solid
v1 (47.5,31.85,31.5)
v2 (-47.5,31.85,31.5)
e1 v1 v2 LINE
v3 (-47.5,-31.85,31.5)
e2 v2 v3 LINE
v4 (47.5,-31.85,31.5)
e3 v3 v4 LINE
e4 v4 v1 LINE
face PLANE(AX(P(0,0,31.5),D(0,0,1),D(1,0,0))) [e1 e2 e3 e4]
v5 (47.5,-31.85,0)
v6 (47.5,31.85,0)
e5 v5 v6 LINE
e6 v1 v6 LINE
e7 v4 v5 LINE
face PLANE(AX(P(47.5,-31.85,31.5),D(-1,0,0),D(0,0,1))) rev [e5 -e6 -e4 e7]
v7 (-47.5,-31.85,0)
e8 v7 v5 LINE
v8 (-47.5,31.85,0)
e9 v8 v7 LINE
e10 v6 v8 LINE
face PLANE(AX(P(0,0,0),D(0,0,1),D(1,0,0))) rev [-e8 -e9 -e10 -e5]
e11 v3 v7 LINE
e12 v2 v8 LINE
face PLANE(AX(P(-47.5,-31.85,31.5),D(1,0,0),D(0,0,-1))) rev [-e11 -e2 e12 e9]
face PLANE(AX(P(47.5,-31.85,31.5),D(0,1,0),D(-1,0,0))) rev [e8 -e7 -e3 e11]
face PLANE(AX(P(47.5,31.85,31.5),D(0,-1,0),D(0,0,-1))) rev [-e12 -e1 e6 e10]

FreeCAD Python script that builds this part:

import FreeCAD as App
import Part
import Sketcher
Q = App.Units.Quantity


def add_polygon(sketch, points):
    """Adds a closed chain of lines whose ends are joined by coincident constraints."""
    first, n = sketch.GeometryCount, len(points)
    for a, b in zip(points, points[1:] + points[:1]):
        sketch.addGeometry(Part.LineSegment(App.Vector(*a, 0), App.Vector(*b, 0)), False)
    for i in range(n):
        sketch.addConstraint(Sketcher.Constraint("Coincident", first + i, 2, first + (i + 1) % n, 1))

doc = App.newDocument("Part")
body = doc.addObject("PartDesign::Body", "Body")

# Sketch on XY plane
sketch1 = doc.addObject("Sketcher::SketchObject", "Sketch")
body.addObject(sketch1)
sketch1.AttachmentSupport = (doc.XY_Plane, [""])
sketch1.MapMode = "FlatFace"
add_polygon(sketch1, [(-48, 32), (-48, -32), (48, -32), (48, 32)])  # lines 0-3
sketch1.addConstraint(Sketcher.Constraint("Vertical", 0))
sketch1.addConstraint(Sketcher.Constraint("Horizontal", 1))
sketch1.addConstraint(Sketcher.Constraint("Vertical", 2))
sketch1.addConstraint(Sketcher.Constraint("Horizontal", 3))
sketch1.addConstraint(Sketcher.Constraint("Symmetric", 0, 2, 2, 2, -1, 1))
sketch1.addConstraint(Sketcher.Constraint("DistanceX", 1, 1, 1, 2, Q("95 mm")))
sketch1.addConstraint(Sketcher.Constraint("DistanceY", 0, 2, 0, 1, Q("63.7 mm")))
pad1 = doc.addObject("PartDesign::Pad", "Pad")
body.addObject(pad1)
pad1.Profile = sketch1
pad1.Length = 31.5

doc.recompute()
